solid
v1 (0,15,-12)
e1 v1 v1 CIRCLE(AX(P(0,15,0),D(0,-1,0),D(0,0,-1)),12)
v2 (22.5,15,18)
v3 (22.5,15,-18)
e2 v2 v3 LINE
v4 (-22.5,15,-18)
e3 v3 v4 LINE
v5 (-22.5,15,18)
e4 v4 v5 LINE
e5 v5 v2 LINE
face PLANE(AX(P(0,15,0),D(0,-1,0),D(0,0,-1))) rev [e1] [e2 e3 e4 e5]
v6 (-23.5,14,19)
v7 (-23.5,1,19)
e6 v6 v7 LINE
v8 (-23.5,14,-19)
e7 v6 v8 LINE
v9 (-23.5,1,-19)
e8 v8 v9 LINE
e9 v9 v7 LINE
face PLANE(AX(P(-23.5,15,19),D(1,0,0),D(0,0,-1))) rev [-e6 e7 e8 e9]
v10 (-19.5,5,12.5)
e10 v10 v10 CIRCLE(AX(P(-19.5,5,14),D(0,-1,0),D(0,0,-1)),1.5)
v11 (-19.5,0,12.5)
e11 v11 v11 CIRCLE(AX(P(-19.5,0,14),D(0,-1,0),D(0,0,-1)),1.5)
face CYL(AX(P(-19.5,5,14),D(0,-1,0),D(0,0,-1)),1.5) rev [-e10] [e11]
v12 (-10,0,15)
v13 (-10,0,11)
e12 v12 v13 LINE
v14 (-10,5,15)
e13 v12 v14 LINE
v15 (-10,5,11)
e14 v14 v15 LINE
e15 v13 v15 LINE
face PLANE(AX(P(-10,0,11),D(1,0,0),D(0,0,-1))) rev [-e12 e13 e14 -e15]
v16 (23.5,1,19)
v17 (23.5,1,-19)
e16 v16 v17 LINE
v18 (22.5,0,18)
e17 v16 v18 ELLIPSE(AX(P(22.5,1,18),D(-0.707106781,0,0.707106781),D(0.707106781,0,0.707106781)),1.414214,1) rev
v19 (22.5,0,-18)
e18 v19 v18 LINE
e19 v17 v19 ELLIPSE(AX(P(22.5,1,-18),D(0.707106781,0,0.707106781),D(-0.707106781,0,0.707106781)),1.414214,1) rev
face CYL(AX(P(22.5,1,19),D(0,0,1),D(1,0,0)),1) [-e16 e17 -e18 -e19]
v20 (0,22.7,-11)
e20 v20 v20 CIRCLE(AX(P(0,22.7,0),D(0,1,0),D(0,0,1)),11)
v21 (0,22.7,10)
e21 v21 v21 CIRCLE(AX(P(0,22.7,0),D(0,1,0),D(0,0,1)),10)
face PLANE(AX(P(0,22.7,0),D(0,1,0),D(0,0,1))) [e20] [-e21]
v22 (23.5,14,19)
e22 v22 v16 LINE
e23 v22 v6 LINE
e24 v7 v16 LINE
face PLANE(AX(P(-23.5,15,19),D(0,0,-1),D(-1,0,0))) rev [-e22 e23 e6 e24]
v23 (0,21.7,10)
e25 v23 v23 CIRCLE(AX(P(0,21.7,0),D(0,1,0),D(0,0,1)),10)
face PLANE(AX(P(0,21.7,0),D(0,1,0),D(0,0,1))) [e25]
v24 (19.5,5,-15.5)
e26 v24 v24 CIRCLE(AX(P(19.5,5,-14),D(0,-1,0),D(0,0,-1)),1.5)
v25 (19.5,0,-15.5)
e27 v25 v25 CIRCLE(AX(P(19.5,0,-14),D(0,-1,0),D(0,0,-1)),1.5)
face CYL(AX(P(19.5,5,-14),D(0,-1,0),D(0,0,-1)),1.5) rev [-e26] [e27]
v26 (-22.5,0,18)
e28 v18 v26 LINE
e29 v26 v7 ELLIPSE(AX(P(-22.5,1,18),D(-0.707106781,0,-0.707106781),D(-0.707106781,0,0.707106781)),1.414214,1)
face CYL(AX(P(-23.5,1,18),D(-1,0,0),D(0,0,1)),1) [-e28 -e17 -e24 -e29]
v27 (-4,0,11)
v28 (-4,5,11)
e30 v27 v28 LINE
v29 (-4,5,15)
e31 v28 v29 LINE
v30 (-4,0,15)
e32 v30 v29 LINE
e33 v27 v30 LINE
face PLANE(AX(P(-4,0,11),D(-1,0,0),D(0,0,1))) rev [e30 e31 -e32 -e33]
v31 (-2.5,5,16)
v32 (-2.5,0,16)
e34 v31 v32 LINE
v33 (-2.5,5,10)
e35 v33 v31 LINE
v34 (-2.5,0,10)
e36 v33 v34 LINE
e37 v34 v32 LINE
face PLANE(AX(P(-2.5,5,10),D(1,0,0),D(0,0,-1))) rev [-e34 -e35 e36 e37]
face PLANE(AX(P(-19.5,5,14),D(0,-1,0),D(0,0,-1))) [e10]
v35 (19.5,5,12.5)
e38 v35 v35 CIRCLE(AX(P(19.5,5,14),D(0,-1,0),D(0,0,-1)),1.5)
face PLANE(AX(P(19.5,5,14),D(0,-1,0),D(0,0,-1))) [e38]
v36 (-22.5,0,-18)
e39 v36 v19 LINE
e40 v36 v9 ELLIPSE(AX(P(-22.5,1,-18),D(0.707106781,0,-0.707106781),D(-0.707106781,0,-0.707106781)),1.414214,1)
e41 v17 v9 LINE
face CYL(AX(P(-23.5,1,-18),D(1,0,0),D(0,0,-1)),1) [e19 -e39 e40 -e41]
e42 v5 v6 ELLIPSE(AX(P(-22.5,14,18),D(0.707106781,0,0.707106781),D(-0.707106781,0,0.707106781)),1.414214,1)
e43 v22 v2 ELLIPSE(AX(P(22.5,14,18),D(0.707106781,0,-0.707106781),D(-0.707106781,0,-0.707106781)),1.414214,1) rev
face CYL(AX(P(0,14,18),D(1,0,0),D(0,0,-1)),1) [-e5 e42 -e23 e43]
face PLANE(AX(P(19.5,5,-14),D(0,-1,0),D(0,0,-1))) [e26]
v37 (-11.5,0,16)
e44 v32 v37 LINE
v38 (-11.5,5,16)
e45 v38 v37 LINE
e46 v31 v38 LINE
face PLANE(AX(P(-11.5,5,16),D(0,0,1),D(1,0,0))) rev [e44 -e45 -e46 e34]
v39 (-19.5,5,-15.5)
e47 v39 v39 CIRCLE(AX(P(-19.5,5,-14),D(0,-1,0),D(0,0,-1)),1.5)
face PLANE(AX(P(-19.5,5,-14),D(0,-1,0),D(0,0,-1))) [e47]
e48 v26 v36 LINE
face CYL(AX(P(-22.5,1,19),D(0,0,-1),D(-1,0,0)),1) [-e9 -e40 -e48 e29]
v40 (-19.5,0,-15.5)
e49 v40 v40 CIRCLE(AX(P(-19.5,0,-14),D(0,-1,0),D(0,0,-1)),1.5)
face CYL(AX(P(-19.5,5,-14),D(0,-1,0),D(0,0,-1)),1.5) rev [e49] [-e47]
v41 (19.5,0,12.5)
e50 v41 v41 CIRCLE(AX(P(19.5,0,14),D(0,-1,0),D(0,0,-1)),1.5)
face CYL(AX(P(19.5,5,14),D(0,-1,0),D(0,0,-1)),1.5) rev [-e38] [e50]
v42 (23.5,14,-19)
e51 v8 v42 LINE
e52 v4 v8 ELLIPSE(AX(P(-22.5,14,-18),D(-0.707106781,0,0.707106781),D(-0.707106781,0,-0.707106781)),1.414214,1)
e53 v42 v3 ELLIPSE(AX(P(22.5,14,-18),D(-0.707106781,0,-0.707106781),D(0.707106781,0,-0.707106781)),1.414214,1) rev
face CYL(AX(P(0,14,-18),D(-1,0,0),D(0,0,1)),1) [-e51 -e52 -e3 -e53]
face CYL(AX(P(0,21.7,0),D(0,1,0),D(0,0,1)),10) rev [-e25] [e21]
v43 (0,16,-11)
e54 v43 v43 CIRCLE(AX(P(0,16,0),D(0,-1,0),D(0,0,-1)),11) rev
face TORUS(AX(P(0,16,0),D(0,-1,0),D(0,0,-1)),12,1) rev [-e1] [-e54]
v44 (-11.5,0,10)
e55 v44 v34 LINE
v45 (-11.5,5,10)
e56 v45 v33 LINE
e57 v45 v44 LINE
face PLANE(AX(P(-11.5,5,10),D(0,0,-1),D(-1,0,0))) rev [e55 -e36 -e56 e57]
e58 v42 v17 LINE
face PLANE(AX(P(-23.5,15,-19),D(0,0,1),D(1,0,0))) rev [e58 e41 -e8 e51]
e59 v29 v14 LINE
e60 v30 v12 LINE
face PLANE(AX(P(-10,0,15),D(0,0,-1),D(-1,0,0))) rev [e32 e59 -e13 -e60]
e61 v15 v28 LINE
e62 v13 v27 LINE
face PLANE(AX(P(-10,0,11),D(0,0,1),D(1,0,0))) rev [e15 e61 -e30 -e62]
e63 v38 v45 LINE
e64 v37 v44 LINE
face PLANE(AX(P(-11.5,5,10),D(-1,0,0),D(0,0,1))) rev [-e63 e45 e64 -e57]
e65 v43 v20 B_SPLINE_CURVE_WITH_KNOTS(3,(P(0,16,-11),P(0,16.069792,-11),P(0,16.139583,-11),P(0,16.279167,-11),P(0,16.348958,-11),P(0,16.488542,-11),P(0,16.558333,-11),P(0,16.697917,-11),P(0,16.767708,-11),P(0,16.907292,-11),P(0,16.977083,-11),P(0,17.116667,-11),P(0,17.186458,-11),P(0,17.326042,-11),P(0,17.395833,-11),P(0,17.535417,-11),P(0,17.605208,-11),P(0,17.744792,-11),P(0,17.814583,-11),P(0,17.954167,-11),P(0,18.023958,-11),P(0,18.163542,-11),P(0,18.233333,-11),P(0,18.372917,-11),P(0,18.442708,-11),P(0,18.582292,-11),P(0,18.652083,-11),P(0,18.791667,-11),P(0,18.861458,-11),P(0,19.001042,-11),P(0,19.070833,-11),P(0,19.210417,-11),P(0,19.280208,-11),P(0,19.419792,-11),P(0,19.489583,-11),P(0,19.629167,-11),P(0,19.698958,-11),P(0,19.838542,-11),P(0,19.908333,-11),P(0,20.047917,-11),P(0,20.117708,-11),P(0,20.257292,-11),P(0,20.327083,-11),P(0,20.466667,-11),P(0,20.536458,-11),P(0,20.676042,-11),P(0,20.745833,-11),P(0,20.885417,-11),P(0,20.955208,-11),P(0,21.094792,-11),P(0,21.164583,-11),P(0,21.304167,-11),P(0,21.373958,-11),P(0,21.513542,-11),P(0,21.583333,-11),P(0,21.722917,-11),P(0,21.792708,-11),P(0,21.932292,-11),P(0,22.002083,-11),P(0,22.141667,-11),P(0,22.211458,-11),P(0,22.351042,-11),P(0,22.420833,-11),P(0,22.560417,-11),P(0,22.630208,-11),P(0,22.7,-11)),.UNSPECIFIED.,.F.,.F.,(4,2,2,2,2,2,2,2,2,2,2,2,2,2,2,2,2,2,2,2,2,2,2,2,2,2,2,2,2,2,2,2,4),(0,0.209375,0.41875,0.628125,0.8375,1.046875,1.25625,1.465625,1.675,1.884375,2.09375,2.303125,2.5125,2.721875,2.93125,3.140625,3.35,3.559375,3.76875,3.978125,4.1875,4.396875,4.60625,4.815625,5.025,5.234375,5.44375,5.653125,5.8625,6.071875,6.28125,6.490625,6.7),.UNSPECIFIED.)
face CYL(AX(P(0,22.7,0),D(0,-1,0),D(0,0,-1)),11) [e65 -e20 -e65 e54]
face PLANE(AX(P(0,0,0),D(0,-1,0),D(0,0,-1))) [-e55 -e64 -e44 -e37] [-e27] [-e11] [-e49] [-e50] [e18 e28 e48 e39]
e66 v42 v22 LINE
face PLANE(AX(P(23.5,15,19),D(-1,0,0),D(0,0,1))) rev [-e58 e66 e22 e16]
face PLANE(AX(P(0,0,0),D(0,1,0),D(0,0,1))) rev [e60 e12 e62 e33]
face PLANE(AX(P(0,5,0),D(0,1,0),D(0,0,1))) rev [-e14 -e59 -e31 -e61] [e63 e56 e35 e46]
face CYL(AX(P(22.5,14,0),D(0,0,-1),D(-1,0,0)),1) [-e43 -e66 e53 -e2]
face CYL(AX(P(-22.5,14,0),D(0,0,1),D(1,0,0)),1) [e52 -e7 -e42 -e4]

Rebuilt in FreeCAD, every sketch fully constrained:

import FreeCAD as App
import Part
import Sketcher
from FreeCAD import Vector
Q = App.Units.Quantity


def edges_at(feature, points):
    """Names of the edges that pass closest to the given points."""
    edges = feature.Shape.Edges
    near = lambda p: min(range(len(edges)), key=lambda i: edges[i].distToShape(Part.Vertex(*p))[0])
    return sorted({f"Edge{near(p) + 1}" for p in points})

doc = App.newDocument("Part")
body = doc.addObject("PartDesign::Body", "Body")

# Sketch on XZ plane
sketch1 = body.newObject("Sketcher::SketchObject", "Sketch")
sketch1.AttachmentSupport = (doc.getObject("XZ_Plane"), [""])
sketch1.MapMode = "FlatFace"
sketch1.addGeometry(Part.LineSegment(Vector(-24, -19, 0), Vector(-24, 19, 0)), False)
sketch1.addGeometry(Part.LineSegment(Vector(-24, 19, 0), Vector(24, 19, 0)), False)
sketch1.addGeometry(Part.LineSegment(Vector(24, 19, 0), Vector(24, -19, 0)), False)
sketch1.addGeometry(Part.LineSegment(Vector(24, -19, 0), Vector(-24, -19, 0)), False)
sketch1.addConstraint(Sketcher.Constraint("Coincident", 0, 2, 1, 1))
sketch1.addConstraint(Sketcher.Constraint("Coincident", 1, 2, 2, 1))
sketch1.addConstraint(Sketcher.Constraint("Coincident", 2, 2, 3, 1))
sketch1.addConstraint(Sketcher.Constraint("Coincident", 3, 2, 0, 1))
sketch1.addConstraint(Sketcher.Constraint("Vertical", 0))
sketch1.addConstraint(Sketcher.Constraint("Horizontal", 1))
sketch1.addConstraint(Sketcher.Constraint("Vertical", 2))
sketch1.addConstraint(Sketcher.Constraint("Horizontal", 3))
sketch1.addConstraint(Sketcher.Constraint("Symmetric", 0, 2, 2, 2, -1, 1))
sketch1.addConstraint(Sketcher.Constraint("DistanceX", 1, 1, 1, 2, Q("47 mm")))
sketch1.addConstraint(Sketcher.Constraint("DistanceY", 0, 1, 0, 2, Q("38 mm")))
pad1 = body.newObject("PartDesign::Pad", "Pad")
pad1.Profile = sketch1
pad1.Length = 15
pad1.Reversed = True

# Sketch on XZ plane
sketch2 = body.newObject("Sketcher::SketchObject", "Sketch001")
sketch2.AttachmentSupport = (doc.getObject("XZ_Plane"), [""])
sketch2.MapMode = "FlatFace"
sketch2.AttachmentOffset = App.Placement(Vector(0, 0, -15), App.Rotation())
sketch2.addGeometry(Part.Circle(Vector(0, 0, 0), Vector(0, 0, 1), 11), False)
sketch2.addConstraint(Sketcher.Constraint("Coincident", 0, 3, -1, 1))
sketch2.addConstraint(Sketcher.Constraint("Diameter", 0, Q("22 mm")))
pad2 = body.newObject("PartDesign::Pad", "Pad001")
pad2.Profile = sketch2
pad2.Length = 7.7
pad2.Reversed = True
doc.recompute()

fillet = body.newObject("PartDesign::Fillet", "Fillet")
fillet.Base = (pad2, edges_at(pad2, [
    (-23.5, 15, 0),
    (0, 15, 11),
    (0, 15, 19),
    (23.5, 15, 0),
    (0, 0, 19),
    (-23.5, 0, 0),
    (0, 0, -19),
    (23.5, 0, 0),
    (0, 15, -19),
]))
fillet.Radius = 1

# Sketch on XZ plane
sketch3 = body.newObject("Sketcher::SketchObject", "Sketch002")
sketch3.AttachmentSupport = (doc.getObject("XZ_Plane"), [""])
sketch3.MapMode = "FlatFace"
sketch3.addGeometry(Part.Circle(Vector(19.5, 14, 0), Vector(0, 0, 1), 1.5), False)
sketch3.addGeometry(Part.Circle(Vector(-19.5, 14, 0), Vector(0, 0, 1), 1.5), False)
sketch3.addGeometry(Part.Circle(Vector(-19.5, -14, 0), Vector(0, 0, 1), 1.5), False)
sketch3.addGeometry(Part.Circle(Vector(19.5, -14, 0), Vector(0, 0, 1), 1.5), False)
sketch3.addGeometry(Part.LineSegment(Vector(-11.5, 16, 0), Vector(-11.5, 10, 0)), False)
sketch3.addGeometry(Part.LineSegment(Vector(-11.5, 10, 0), Vector(-2.5, 10, 0)), False)
sketch3.addGeometry(Part.LineSegment(Vector(-2.5, 10, 0), Vector(-2.5, 16, 0)), False)
sketch3.addGeometry(Part.LineSegment(Vector(-2.5, 16, 0), Vector(-11.5, 16, 0)), False)
sketch3.addConstraint(Sketcher.Constraint("Coincident", 4, 2, 5, 1))
sketch3.addConstraint(Sketcher.Constraint("Coincident", 5, 2, 6, 1))
sketch3.addConstraint(Sketcher.Constraint("Coincident", 6, 2, 7, 1))
sketch3.addConstraint(Sketcher.Constraint("Coincident", 7, 2, 4, 1))
sketch3.addConstraint(Sketcher.Constraint("Vertical", 4))
sketch3.addConstraint(Sketcher.Constraint("Horizontal", 5))
sketch3.addConstraint(Sketcher.Constraint("Vertical", 6))
sketch3.addConstraint(Sketcher.Constraint("Horizontal", 7))
sketch3.addConstraint(Sketcher.Constraint("Equal", 0, 1))
sketch3.addConstraint(Sketcher.Constraint("Equal", 1, 2))
sketch3.addConstraint(Sketcher.Constraint("Equal", 2, 3))
sketch3.addConstraint(Sketcher.Constraint("Symmetric", 0, 3, 2, 3, -1, 1))
sketch3.addConstraint(Sketcher.Constraint("Symmetric", 1, 3, 3, 3, -1, 1))
sketch3.addConstraint(Sketcher.Constraint("Symmetric", 0, 3, 1, 3, -2))
sketch3.addConstraint(Sketcher.Constraint("Diameter", 0, Q("3 mm")))
sketch3.addConstraint(Sketcher.Constraint("DistanceX", 5, 1, 5, 2, Q("9 mm")))
sketch3.addConstraint(Sketcher.Constraint("DistanceY", 4, 2, 4, 1, Q("6 mm")))
sketch3.addConstraint(Sketcher.Constraint("DistanceY", -1, 1, 0, 3, Q("14 mm")))
sketch3.addConstraint(Sketcher.Constraint("DistanceY", -1, 1, 4, 2, Q("10 mm")))
sketch3.addConstraint(Sketcher.Constraint("DistanceX", 1, 3, 0, 3, Q("39 mm")))
sketch3.addConstraint(Sketcher.Constraint("DistanceX", 1, 3, 4, 2, Q("8 mm")))
pocket1 = body.newObject("PartDesign::Pocket", "Pocket")
pocket1.Profile = sketch3
pocket1.Length = 5

# Sketch on XZ plane
sketch4 = body.newObject("Sketcher::SketchObject", "Sketch003")
sketch4.AttachmentSupport = (doc.getObject("XZ_Plane"), [""])
sketch4.MapMode = "FlatFace"
sketch4.AttachmentOffset = App.Placement(Vector(0, 0, -5), App.Rotation())
sketch4.addGeometry(Part.LineSegment(Vector(-10, 15, 0), Vector(-10, 11, 0)), False)
sketch4.addGeometry(Part.LineSegment(Vector(-10, 11, 0), Vector(-4, 11, 0)), False)
sketch4.addGeometry(Part.LineSegment(Vector(-4, 11, 0), Vector(-4, 15, 0)), False)
sketch4.addGeometry(Part.LineSegment(Vector(-4, 15, 0), Vector(-10, 15, 0)), False)
sketch4.addConstraint(Sketcher.Constraint("Coincident", 0, 2, 1, 1))
sketch4.addConstraint(Sketcher.Constraint("Coincident", 1, 2, 2, 1))
sketch4.addConstraint(Sketcher.Constraint("Coincident", 2, 2, 3, 1))
sketch4.addConstraint(Sketcher.Constraint("Coincident", 3, 2, 0, 1))
sketch4.addConstraint(Sketcher.Constraint("Vertical", 0))
sketch4.addConstraint(Sketcher.Constraint("Horizontal", 1))
sketch4.addConstraint(Sketcher.Constraint("Vertical", 2))
sketch4.addConstraint(Sketcher.Constraint("Horizontal", 3))
sketch4.addConstraint(Sketcher.Constraint("DistanceX", 1, 1, 1, 2, Q("6 mm")))
sketch4.addConstraint(Sketcher.Constraint("DistanceY", 0, 2, 0, 1, Q("4 mm")))
sketch4.addConstraint(Sketcher.Constraint("DistanceX", 0, 2, -1, 1, Q("10 mm")))
sketch4.addConstraint(Sketcher.Constraint("DistanceY", -1, 1, 0, 2, Q("11 mm")))
pad3 = body.newObject("PartDesign::Pad", "Pad002")
pad3.Profile = sketch4
pad3.Length = 5

# Sketch on XZ plane
sketch5 = body.newObject("Sketcher::SketchObject", "Sketch004")
sketch5.AttachmentSupport = (doc.getObject("XZ_Plane"), [""])
sketch5.MapMode = "FlatFace"
sketch5.AttachmentOffset = App.Placement(Vector(0, 0, -22.7), App.Rotation())
sketch5.addGeometry(Part.Circle(Vector(0, 0, 0), Vector(0, 0, 1), 10), False)
sketch5.addConstraint(Sketcher.Constraint("Coincident", 0, 3, -1, 1))
sketch5.addConstraint(Sketcher.Constraint("Diameter", 0, Q("20 mm")))
pocket2 = body.newObject("PartDesign::Pocket", "Pocket001")
pocket2.Profile = sketch5
pocket2.Length = 1
pocket2.Reversed = True

doc.recompute()
